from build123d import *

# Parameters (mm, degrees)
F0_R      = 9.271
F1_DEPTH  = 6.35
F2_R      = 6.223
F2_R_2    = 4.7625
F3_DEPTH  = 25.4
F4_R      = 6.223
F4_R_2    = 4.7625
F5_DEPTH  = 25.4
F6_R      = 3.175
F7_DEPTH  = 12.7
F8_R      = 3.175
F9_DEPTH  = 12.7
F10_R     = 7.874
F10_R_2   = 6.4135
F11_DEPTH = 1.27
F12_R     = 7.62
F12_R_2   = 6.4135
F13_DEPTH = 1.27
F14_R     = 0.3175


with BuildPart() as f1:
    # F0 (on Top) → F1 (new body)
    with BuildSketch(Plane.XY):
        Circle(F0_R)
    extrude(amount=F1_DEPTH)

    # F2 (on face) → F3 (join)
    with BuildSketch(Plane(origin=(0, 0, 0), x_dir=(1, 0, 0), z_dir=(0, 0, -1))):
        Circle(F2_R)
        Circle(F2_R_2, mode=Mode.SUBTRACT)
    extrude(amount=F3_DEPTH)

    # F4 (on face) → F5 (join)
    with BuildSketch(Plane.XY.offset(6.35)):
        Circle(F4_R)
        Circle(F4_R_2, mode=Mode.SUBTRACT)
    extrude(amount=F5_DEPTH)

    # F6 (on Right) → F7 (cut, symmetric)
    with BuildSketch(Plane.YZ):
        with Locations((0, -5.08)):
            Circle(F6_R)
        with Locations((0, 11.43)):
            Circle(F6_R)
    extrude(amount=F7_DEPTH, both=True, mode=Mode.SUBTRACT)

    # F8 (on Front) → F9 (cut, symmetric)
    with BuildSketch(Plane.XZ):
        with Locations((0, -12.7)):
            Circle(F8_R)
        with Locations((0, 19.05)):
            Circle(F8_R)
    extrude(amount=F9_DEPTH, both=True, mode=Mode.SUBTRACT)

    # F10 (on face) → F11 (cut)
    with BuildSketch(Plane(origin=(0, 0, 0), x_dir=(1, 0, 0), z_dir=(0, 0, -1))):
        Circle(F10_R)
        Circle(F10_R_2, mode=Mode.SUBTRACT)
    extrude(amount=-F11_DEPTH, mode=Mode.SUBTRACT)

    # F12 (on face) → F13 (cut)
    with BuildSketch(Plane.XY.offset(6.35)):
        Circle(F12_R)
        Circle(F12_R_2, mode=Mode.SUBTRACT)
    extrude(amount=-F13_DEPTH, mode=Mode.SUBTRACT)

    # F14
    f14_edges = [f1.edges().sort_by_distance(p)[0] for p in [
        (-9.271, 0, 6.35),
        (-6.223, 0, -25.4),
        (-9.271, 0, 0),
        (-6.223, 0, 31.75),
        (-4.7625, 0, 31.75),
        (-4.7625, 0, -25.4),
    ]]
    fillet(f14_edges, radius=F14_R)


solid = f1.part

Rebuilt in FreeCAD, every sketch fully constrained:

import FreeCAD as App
import Part
import Sketcher

V = App.Vector
Q = App.Units.Quantity


def edges_at(feature, points):
    """Names of the edges that pass closest to the given points."""
    edges = feature.Shape.Edges
    near = lambda p: min(range(len(edges)), key=lambda i: edges[i].distToShape(Part.Vertex(*p))[0])
    return sorted({f"Edge{near(p) + 1}" for p in points})

doc = App.newDocument("Part")
body = doc.addObject("PartDesign::Body", "Body")

sketch1 = doc.addObject("Sketcher::SketchObject", "Sketch")
body.addObject(sketch1)
sketch1.AttachmentSupport = (doc.XY_Plane, [""])
sketch1.MapMode = "FlatFace"
sketch1.addGeometry(Part.Circle(V(0, 0, 0), V(0, 0, 1), 9.271), False)
sketch1.addConstraint(Sketcher.Constraint("Coincident", 0, 3, -1, 1))
sketch1.addConstraint(Sketcher.Constraint("Diameter", 0, Q("0.73 in")))
pad1 = doc.addObject("PartDesign::Pad", "Pad")
body.addObject(pad1)
pad1.Profile = sketch1
pad1.Length = Q("0.25 in")

sketch2 = doc.addObject("Sketcher::SketchObject", "Sketch001")
body.addObject(sketch2)
sketch2.AttachmentSupport = (doc.XY_Plane, [""])
sketch2.MapMode = "FlatFace"
sketch2.addGeometry(Part.Circle(V(0, 0, 0), V(0, 0, 1), 6.223), False)
sketch2.addGeometry(Part.Circle(V(0, 0, 0), V(0, 0, 1), 4.7625), False)
sketch2.addConstraint(Sketcher.Constraint("Coincident", 0, 3, -1, 1))
sketch2.addConstraint(Sketcher.Constraint("Coincident", 1, 3, -1, 1))
sketch2.addConstraint(Sketcher.Constraint("Diameter", 0, Q("0.49 in")))
sketch2.addConstraint(Sketcher.Constraint("Diameter", 1, Q("0.375 in")))
pad2 = doc.addObject("PartDesign::Pad", "Pad001")
body.addObject(pad2)
pad2.Profile = sketch2
pad2.Length = Q("1 in")
pad2.Reversed = True

sketch3 = doc.addObject("Sketcher::SketchObject", "Sketch002")
body.addObject(sketch3)
sketch3.AttachmentSupport = (doc.XY_Plane, [""])
sketch3.MapMode = "FlatFace"
sketch3.AttachmentOffset = App.Placement(V(0, 0, 0.25 * 25.4), App.Rotation())
sketch3.addGeometry(Part.Circle(V(0, 0, 0), V(0, 0, 1), 6.223), False)
sketch3.addGeometry(Part.Circle(V(0, 0, 0), V(0, 0, 1), 4.7625), False)
sketch3.addConstraint(Sketcher.Constraint("Coincident", 0, 3, -1, 1))
sketch3.addConstraint(Sketcher.Constraint("Coincident", 1, 3, -1, 1))
sketch3.addConstraint(Sketcher.Constraint("Diameter", 0, Q("0.49 in")))
sketch3.addConstraint(Sketcher.Constraint("Diameter", 1, Q("0.375 in")))
pad3 = doc.addObject("PartDesign::Pad", "Pad002")
body.addObject(pad3)
pad3.Profile = sketch3
pad3.Length = Q("1 in")

sketch4 = doc.addObject("Sketcher::SketchObject", "Sketch003")
body.addObject(sketch4)
sketch4.AttachmentSupport = (doc.YZ_Plane, [""])
sketch4.MapMode = "FlatFace"
sketch4.addGeometry(Part.Circle(V(0, -5.08, 0), V(0, 0, 1), 3.175), False)
sketch4.addGeometry(Part.Circle(V(0, 11.43, 0), V(0, 0, 1), 3.175), False)
sketch4.addConstraint(Sketcher.Constraint("Equal", 0, 1))
sketch4.addConstraint(Sketcher.Constraint("PointOnObject", 0, 3, -2))
sketch4.addConstraint(Sketcher.Constraint("PointOnObject", 1, 3, -2))
sketch4.addConstraint(Sketcher.Constraint("Diameter", 0, Q("0.25 in")))
sketch4.addConstraint(Sketcher.Constraint("DistanceY", 0, 3, -1, 1, Q("0.2 in")))
sketch4.addConstraint(Sketcher.Constraint("DistanceY", -1, 1, 1, 3, Q("0.45 in")))
pocket1 = doc.addObject("PartDesign::Pocket", "Pocket")
body.addObject(pocket1)
pocket1.Profile = sketch4
pocket1.Length = Q("1 in")
pocket1.Midplane = True

sketch5 = doc.addObject("Sketcher::SketchObject", "Sketch004")
body.addObject(sketch5)
sketch5.AttachmentSupport = (doc.XZ_Plane, [""])
sketch5.MapMode = "FlatFace"
sketch5.addGeometry(Part.Circle(V(0, -12.7, 0), V(0, 0, 1), 3.175), False)
sketch5.addGeometry(Part.Circle(V(0, 19.05, 0), V(0, 0, 1), 3.175), False)
sketch5.addConstraint(Sketcher.Constraint("Equal", 0, 1))
sketch5.addConstraint(Sketcher.Constraint("PointOnObject", 0, 3, -2))
sketch5.addConstraint(Sketcher.Constraint("PointOnObject", 1, 3, -2))
sketch5.addConstraint(Sketcher.Constraint("Diameter", 0, Q("0.25 in")))
sketch5.addConstraint(Sketcher.Constraint("DistanceY", 0, 3, -1, 1, Q("0.5 in")))
sketch5.addConstraint(Sketcher.Constraint("DistanceY", -1, 1, 1, 3, Q("0.75 in")))
pocket2 = doc.addObject("PartDesign::Pocket", "Pocket001")
body.addObject(pocket2)
pocket2.Profile = sketch5
pocket2.Length = Q("1 in")
pocket2.Midplane = True

sketch6 = doc.addObject("Sketcher::SketchObject", "Sketch005")
body.addObject(sketch6)
sketch6.AttachmentSupport = (doc.XY_Plane, [""])
sketch6.MapMode = "FlatFace"
sketch6.addGeometry(Part.Circle(V(0, 0, 0), V(0, 0, 1), 7.874), False)
sketch6.addGeometry(Part.Circle(V(0, 0, 0), V(0, 0, 1), 6.4135), False)
sketch6.addConstraint(Sketcher.Constraint("Coincident", 0, 3, -1, 1))
sketch6.addConstraint(Sketcher.Constraint("Coincident", 1, 3, -1, 1))
sketch6.addConstraint(Sketcher.Constraint("Diameter", 0, Q("0.62 in")))
sketch6.addConstraint(Sketcher.Constraint("Diameter", 1, Q("0.505 in")))
pocket3 = doc.addObject("PartDesign::Pocket", "Pocket002")
body.addObject(pocket3)
pocket3.Profile = sketch6
pocket3.Length = Q("0.05 in")
pocket3.Reversed = True

sketch7 = doc.addObject("Sketcher::SketchObject", "Sketch006")
body.addObject(sketch7)
sketch7.AttachmentSupport = (doc.XY_Plane, [""])
sketch7.MapMode = "FlatFace"
sketch7.AttachmentOffset = App.Placement(V(0, 0, 0.25 * 25.4), App.Rotation())
sketch7.addGeometry(Part.Circle(V(0, 0, 0), V(0, 0, 1), 7.62), False)
sketch7.addGeometry(Part.Circle(V(0, 0, 0), V(0, 0, 1), 6.4135), False)
sketch7.addConstraint(Sketcher.Constraint("Coincident", 0, 3, -1, 1))
sketch7.addConstraint(Sketcher.Constraint("Coincident", 1, 3, -1, 1))
sketch7.addConstraint(Sketcher.Constraint("Diameter", 0, Q("0.6 in")))
sketch7.addConstraint(Sketcher.Constraint("Diameter", 1, Q("0.505 in")))
pocket4 = doc.addObject("PartDesign::Pocket", "Pocket003")
body.addObject(pocket4)
pocket4.Profile = sketch7
pocket4.Length = Q("0.05 in")
doc.recompute()

fillet = doc.addObject("PartDesign::Fillet", "Fillet")
body.addObject(fillet)
fillet.Base = (pocket4, edges_at(pocket4, [
    (-9.271, 0, 6.35),
    (-6.223, 0, -25.4),
    (-9.271, 0, 0),
    (-6.223, 0, 31.75),
    (-4.763, 0, 31.75),
    (-4.763, 0, -25.4),
]))
fillet.Radius = Q("0.0125 in")

doc.recompute()
